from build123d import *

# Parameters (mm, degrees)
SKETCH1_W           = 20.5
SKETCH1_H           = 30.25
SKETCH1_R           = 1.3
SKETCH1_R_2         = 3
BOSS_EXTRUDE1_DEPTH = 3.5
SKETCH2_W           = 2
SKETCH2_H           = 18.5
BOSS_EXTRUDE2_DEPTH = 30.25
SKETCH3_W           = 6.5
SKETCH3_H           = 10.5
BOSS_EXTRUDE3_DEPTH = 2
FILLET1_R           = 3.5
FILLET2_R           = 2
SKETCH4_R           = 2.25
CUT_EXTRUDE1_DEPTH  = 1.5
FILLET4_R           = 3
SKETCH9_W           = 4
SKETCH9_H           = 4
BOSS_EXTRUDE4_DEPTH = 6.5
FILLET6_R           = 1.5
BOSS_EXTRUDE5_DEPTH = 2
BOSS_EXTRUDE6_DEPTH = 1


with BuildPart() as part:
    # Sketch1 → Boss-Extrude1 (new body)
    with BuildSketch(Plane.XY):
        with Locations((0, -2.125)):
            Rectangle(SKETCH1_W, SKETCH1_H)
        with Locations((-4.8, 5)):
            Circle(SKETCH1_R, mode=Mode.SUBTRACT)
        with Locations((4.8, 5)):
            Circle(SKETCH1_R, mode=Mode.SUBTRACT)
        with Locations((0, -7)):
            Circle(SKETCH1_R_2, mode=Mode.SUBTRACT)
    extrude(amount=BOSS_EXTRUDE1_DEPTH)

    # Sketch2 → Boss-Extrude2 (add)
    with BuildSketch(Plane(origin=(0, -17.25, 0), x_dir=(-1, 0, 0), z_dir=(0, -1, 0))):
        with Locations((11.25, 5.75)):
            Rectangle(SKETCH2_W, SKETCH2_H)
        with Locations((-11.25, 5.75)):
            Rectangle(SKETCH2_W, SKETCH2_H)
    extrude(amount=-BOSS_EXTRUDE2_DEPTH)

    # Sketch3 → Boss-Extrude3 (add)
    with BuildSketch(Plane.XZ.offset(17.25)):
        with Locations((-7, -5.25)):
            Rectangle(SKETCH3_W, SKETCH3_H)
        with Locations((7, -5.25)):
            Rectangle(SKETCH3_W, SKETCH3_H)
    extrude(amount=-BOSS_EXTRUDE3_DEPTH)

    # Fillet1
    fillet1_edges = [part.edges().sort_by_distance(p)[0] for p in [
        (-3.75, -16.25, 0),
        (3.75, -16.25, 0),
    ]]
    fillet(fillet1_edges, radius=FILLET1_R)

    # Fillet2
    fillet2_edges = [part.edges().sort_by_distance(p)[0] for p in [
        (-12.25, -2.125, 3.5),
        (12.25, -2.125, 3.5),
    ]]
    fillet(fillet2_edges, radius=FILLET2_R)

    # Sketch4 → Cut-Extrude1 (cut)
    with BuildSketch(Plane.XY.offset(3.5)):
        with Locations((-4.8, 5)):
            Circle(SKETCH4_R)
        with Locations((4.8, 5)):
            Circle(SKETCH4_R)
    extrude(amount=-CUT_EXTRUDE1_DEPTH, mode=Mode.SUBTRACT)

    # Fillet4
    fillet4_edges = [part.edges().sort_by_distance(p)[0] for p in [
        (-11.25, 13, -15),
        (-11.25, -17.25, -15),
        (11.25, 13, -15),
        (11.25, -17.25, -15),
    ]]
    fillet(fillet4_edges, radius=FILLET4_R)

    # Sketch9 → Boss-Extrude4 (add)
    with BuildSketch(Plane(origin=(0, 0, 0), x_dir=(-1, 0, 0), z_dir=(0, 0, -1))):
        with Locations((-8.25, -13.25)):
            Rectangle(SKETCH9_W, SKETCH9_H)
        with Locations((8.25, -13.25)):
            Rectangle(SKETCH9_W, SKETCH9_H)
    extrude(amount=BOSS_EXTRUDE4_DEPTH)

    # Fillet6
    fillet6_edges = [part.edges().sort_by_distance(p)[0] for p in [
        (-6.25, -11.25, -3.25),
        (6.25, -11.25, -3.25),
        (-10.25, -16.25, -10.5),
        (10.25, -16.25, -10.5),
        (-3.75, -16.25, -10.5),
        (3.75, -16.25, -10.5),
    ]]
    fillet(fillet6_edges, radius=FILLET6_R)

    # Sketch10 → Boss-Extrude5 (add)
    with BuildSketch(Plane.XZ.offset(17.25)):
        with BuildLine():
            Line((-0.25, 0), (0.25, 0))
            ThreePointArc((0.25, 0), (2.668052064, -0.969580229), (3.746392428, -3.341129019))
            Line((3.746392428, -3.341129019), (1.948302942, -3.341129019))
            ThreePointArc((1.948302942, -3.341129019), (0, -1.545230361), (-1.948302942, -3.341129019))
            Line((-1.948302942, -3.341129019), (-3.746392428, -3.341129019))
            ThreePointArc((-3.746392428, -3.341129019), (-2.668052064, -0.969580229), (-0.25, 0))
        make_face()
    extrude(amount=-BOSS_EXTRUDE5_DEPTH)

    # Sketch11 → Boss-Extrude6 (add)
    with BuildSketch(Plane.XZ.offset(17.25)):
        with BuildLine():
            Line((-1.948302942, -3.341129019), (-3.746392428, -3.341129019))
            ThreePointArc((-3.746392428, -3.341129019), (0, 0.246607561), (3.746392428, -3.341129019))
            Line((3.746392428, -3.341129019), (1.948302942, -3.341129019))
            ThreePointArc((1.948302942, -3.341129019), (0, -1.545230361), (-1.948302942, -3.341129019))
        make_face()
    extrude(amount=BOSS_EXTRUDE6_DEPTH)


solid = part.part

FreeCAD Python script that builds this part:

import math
import FreeCAD as App
import Part
import Sketcher
Q = App.Units.Quantity


def edges_at(feature, points):
    """Names of the edges that pass closest to the given points."""
    edges = feature.Shape.Edges
    near = lambda p: min(range(len(edges)), key=lambda i: edges[i].distToShape(Part.Vertex(*p))[0])
    return sorted({f"Edge{near(p) + 1}" for p in points})

doc = App.newDocument("Part")
params = doc.addObject("Spreadsheet::Sheet", "Params")
for row, (alias, value) in enumerate([
    ("sketch1_diameter", "6 mm"),
    ("sketch1_diameter2", "2.6 mm"),
    ("sketch1_width", "20.5 mm"),
    ("sketch1_height", "30.25 mm"),
    ("pad1_length", "3.5 mm"),
    ("sketch2_width", "2 mm"),
    ("sketch2_height", "18.5 mm"),
    ("pad2_length", "30.25 mm"),
    ("sketch3_width", "6.5 mm"),
    ("sketch3_height", "10.5 mm"),
    ("pad3_length", "2 mm"),
    ("fillet_radius", "3.5 mm"),
    ("fillet2_radius", "2 mm"),
    ("sketch4_diameter", "4.5 mm"),
    ("pocket1_length", "1.5 mm"),
    ("fillet3_radius", "3 mm"),
    ("sketch5_width", "4 mm"),
    ("pad4_length", "6.5 mm"),
    ("fillet4_radius", "1.5 mm"),
    ("sketch6_radius", "3.5 mm"),
    ("sketch6_width", "0.5 mm"),
    ("pad5_length", "2 mm"),
    ("pad6_length", "1 mm"),
], start=1):
    params.set(f"A{row}", alias)
    params.set(f"B{row}", "=" + value)
    params.setAlias(f"B{row}", alias)

body = doc.addObject("PartDesign::Body", "Body")

sketch1 = body.newObject("Sketcher::SketchObject", "Sketch")
sketch1.AttachmentSupport = (doc.getObject("XY_Plane"), [""])
sketch1.MapMode = "FlatFace"
sketch1.addGeometry([
    Part.LineSegment(App.Vector(-10.2, 13, 0), App.Vector(-10.2, -17.2, 0)),
    Part.LineSegment(App.Vector(-10.2, -17.2, 0), App.Vector(10.2, -17.2, 0)),
    Part.LineSegment(App.Vector(10.2, -17.2, 0), App.Vector(10.2, 13, 0)),
    Part.LineSegment(App.Vector(10.2, 13, 0), App.Vector(-10.2, 13, 0)),
    Part.Circle(App.Vector(0, -7, 0), App.Vector(0, 0, 1), 3),
    Part.Circle(App.Vector(-4.8, 5, 0), App.Vector(0, 0, 1), 1.3),
    Part.Circle(App.Vector(4.8, 5, 0), App.Vector(0, 0, 1), 1.3),
], False)
sketch1.addConstraint([
    Sketcher.Constraint("Coincident", 0, 2, 1, 1),
    Sketcher.Constraint("Coincident", 1, 2, 2, 1),
    Sketcher.Constraint("Coincident", 2, 2, 3, 1),
    Sketcher.Constraint("Coincident", 3, 2, 0, 1),
    Sketcher.Constraint("Vertical", 0),
    Sketcher.Constraint("Horizontal", 1),
    Sketcher.Constraint("Vertical", 2),
    Sketcher.Constraint("Horizontal", 3),
    Sketcher.Constraint("Equal", 5, 6),
    Sketcher.Constraint("Symmetric", 5, 3, 6, 3, -2),
    Sketcher.Constraint("PointOnObject", 4, 3, -2),
    Sketcher.Constraint("Diameter", 4, Q("6 mm")),
    Sketcher.Constraint("Diameter", 5, Q("2.6 mm")),
    Sketcher.Constraint("DistanceX", 1, 1, 1, 2, Q("20.5 mm")),
    Sketcher.Constraint("DistanceY", 4, 3, -1, 1, Q("7 mm")),
    Sketcher.Constraint("DistanceY", -1, 1, 5, 3, Q("5 mm")),
    Sketcher.Constraint("DistanceY", -1, 1, 2, 2, Q("13 mm")),
    Sketcher.Constraint("DistanceY", 0, 2, 0, 1, Q("30.25 mm")),
    Sketcher.Constraint("DistanceX", 5, 3, -1, 1, Q("4.8 mm")),
    Sketcher.Constraint("DistanceX", 0, 2, -1, 1, Q("10.25 mm")),
])
sketch1.setExpression("Constraints[11]", "Params.sketch1_diameter")
sketch1.setExpression("Constraints[12]", "Params.sketch1_diameter2")
sketch1.setExpression("Constraints[13]", "Params.sketch1_width")
sketch1.setExpression("Constraints[17]", "Params.sketch1_height")
pad1 = body.newObject("PartDesign::Pad", "Pad")
pad1.Profile = sketch1
pad1.setExpression("Length", "Params.pad1_length")

sketch2 = body.newObject("Sketcher::SketchObject", "Sketch001")
sketch2.AttachmentSupport = (doc.getObject("XZ_Plane"), [""])
sketch2.MapMode = "FlatFace"
sketch2.AttachmentOffset = App.Placement(App.Vector(0, 0, 17.25), App.Rotation())
sketch2.addGeometry([
    Part.LineSegment(App.Vector(-10.2, -15, 0), App.Vector(-10.2, 3.5, 0)),
    Part.LineSegment(App.Vector(-10.2, 3.5, 0), App.Vector(-12.2, 3.5, 0)),
    Part.LineSegment(App.Vector(-12.2, 3.5, 0), App.Vector(-12.2, -15, 0)),
    Part.LineSegment(App.Vector(-12.2, -15, 0), App.Vector(-10.2, -15, 0)),
    Part.LineSegment(App.Vector(12.2, -15, 0), App.Vector(12.2, 3.5, 0)),
    Part.LineSegment(App.Vector(12.2, 3.5, 0), App.Vector(10.2, 3.5, 0)),
    Part.LineSegment(App.Vector(10.2, 3.5, 0), App.Vector(10.2, -15, 0)),
    Part.LineSegment(App.Vector(10.2, -15, 0), App.Vector(12.2, -15, 0)),
], False)
sketch2.addConstraint([
    Sketcher.Constraint("Coincident", 0, 2, 1, 1),
    Sketcher.Constraint("Coincident", 1, 2, 2, 1),
    Sketcher.Constraint("Coincident", 2, 2, 3, 1),
    Sketcher.Constraint("Coincident", 3, 2, 0, 1),
    Sketcher.Constraint("Coincident", 4, 2, 5, 1),
    Sketcher.Constraint("Coincident", 5, 2, 6, 1),
    Sketcher.Constraint("Coincident", 6, 2, 7, 1),
    Sketcher.Constraint("Coincident", 7, 2, 4, 1),
    Sketcher.Constraint("Vertical", 0),
    Sketcher.Constraint("Horizontal", 1),
    Sketcher.Constraint("Vertical", 2),
    Sketcher.Constraint("Horizontal", 3),
    Sketcher.Constraint("Vertical", 4),
    Sketcher.Constraint("Horizontal", 5),
    Sketcher.Constraint("Vertical", 6),
    Sketcher.Constraint("Horizontal", 7),
    Sketcher.Constraint("Symmetric", 1, 2, 4, 2, -2),
    Sketcher.Constraint("Symmetric", 3, 2, 6, 2, -2),
    Sketcher.Constraint("DistanceX", 1, 2, 1, 1, Q("2 mm")),
    Sketcher.Constraint("DistanceY", 0, 1, 0, 2, Q("18.5 mm")),
    Sketcher.Constraint("DistanceY", 2, 2, -1, 1, Q("15 mm")),
    Sketcher.Constraint("DistanceX", 0, 2, 4, 2, Q("22.5 mm")),
])
sketch2.setExpression("Constraints[18]", "Params.sketch2_width")
sketch2.setExpression("Constraints[19]", "Params.sketch2_height")
pad2 = body.newObject("PartDesign::Pad", "Pad001")
pad2.Profile = sketch2
pad2.setExpression("Length", "Params.pad2_length")
pad2.Reversed = True

sketch3 = body.newObject("Sketcher::SketchObject", "Sketch002")
sketch3.AttachmentSupport = (doc.getObject("XZ_Plane"), [""])
sketch3.MapMode = "FlatFace"
sketch3.AttachmentOffset = App.Placement(App.Vector(0, 0, 17.25), App.Rotation())
sketch3.addGeometry([
    Part.LineSegment(App.Vector(-10, 0, 0), App.Vector(-10, -10, 0)),
    Part.LineSegment(App.Vector(-10, -10, 0), App.Vector(-4, -10, 0)),
    Part.LineSegment(App.Vector(-4, -10, 0), App.Vector(-4, 0, 0)),
    Part.LineSegment(App.Vector(-4, 0, 0), App.Vector(-10, 0, 0)),
    Part.LineSegment(App.Vector(4, 0, 0), App.Vector(4, -10, 0)),
    Part.LineSegment(App.Vector(4, -10, 0), App.Vector(10, -10, 0)),
    Part.LineSegment(App.Vector(10, -10, 0), App.Vector(10, 0, 0)),
    Part.LineSegment(App.Vector(10, 0, 0), App.Vector(4, 0, 0)),
], False)
sketch3.addConstraint([
    Sketcher.Constraint("Coincident", 0, 2, 1, 1),
    Sketcher.Constraint("Coincident", 1, 2, 2, 1),
    Sketcher.Constraint("Coincident", 2, 2, 3, 1),
    Sketcher.Constraint("Coincident", 3, 2, 0, 1),
    Sketcher.Constraint("Coincident", 4, 2, 5, 1),
    Sketcher.Constraint("Coincident", 5, 2, 6, 1),
    Sketcher.Constraint("Coincident", 6, 2, 7, 1),
    Sketcher.Constraint("Coincident", 7, 2, 4, 1),
    Sketcher.Constraint("Vertical", 0),
    Sketcher.Constraint("Horizontal", 1),
    Sketcher.Constraint("Vertical", 2),
    Sketcher.Constraint("Horizontal", 3),
    Sketcher.Constraint("Vertical", 4),
    Sketcher.Constraint("Horizontal", 5),
    Sketcher.Constraint("Vertical", 6),
    Sketcher.Constraint("Horizontal", 7),
    Sketcher.Constraint("Symmetric", 3, 2, 6, 2, -1, 1),
    Sketcher.Constraint("Symmetric", 1, 2, 4, 2, -2),
    Sketcher.Constraint("PointOnObject", 2, 2, -1),
    Sketcher.Constraint("DistanceX", 1, 1, 1, 2, Q("6.5 mm")),
    Sketcher.Constraint("DistanceY", 0, 2, 0, 1, Q("10.5 mm")),
    Sketcher.Constraint("DistanceX", 0, 2, 4, 2, Q("14 mm")),
])
sketch3.setExpression("Constraints[19]", "Params.sketch3_width")
sketch3.setExpression("Constraints[20]", "Params.sketch3_height")
pad3 = body.newObject("PartDesign::Pad", "Pad002")
pad3.Profile = sketch3
pad3.setExpression("Length", "Params.pad3_length")
pad3.Reversed = True
doc.recompute()

fillet = body.newObject("PartDesign::Fillet", "Fillet")
fillet.Base = (pad3, edges_at(pad3, [(-3.75, -16.25, 0), (3.75, -16.25, 0)]))
fillet.setExpression("Radius", "Params.fillet_radius")
doc.recompute()

fillet2 = body.newObject("PartDesign::Fillet", "Fillet001")
fillet2.Base = (fillet, edges_at(fillet, [(-12.25, -2.125, 3.5), (12.25, -2.125, 3.5)]))
fillet2.setExpression("Radius", "Params.fillet2_radius")

sketch4 = body.newObject("Sketcher::SketchObject", "Sketch003")
sketch4.AttachmentSupport = (doc.getObject("XY_Plane"), [""])
sketch4.MapMode = "FlatFace"
sketch4.AttachmentOffset = App.Placement(App.Vector(0, 0, 3.5), App.Rotation())
sketch4.addGeometry([
    Part.Circle(App.Vector(-4.8, 5, 0), App.Vector(0, 0, 1), 2.2),
    Part.Circle(App.Vector(4.8, 5, 0), App.Vector(0, 0, 1), 2.2),
], False)
sketch4.addConstraint([
    Sketcher.Constraint("Equal", 0, 1),
    Sketcher.Constraint("Symmetric", 0, 3, 1, 3, -2),
    Sketcher.Constraint("Diameter", 0, Q("4.5 mm")),
    Sketcher.Constraint("DistanceY", -1, 1, 0, 3, Q("5 mm")),
    Sketcher.Constraint("DistanceX", 0, 3, -1, 1, Q("4.8 mm")),
])
sketch4.setExpression("Constraints[2]", "Params.sketch4_diameter")
pocket1 = body.newObject("PartDesign::Pocket", "Pocket")
pocket1.Profile = sketch4
pocket1.setExpression("Length", "Params.pocket1_length")
doc.recompute()

fillet3 = body.newObject("PartDesign::Fillet", "Fillet002")
fillet3.Base = (pocket1, edges_at(pocket1, [
    (-11.25, 13, -15),
    (-11.25, -17.25, -15),
    (11.25, 13, -15),
    (11.25, -17.25, -15),
]))
fillet3.setExpression("Radius", "Params.fillet3_radius")

sketch5 = body.newObject("Sketcher::SketchObject", "Sketch004")
sketch5.AttachmentSupport = (doc.getObject("XY_Plane"), [""])
sketch5.MapMode = "FlatFace"
sketch5.addGeometry([
    Part.LineSegment(App.Vector(10.2, -11.2, 0), App.Vector(10.2, -15.2, 0)),
    Part.LineSegment(App.Vector(10.2, -15.2, 0), App.Vector(6.2, -15.2, 0)),
    Part.LineSegment(App.Vector(6.2, -15.2, 0), App.Vector(6.2, -11.2, 0)),
    Part.LineSegment(App.Vector(6.2, -11.2, 0), App.Vector(10.2, -11.2, 0)),
    Part.LineSegment(App.Vector(-6.2, -11.2, 0), App.Vector(-6.2, -15.2, 0)),
    Part.LineSegment(App.Vector(-6.2, -15.2, 0), App.Vector(-10.2, -15.2, 0)),
    Part.LineSegment(App.Vector(-10.2, -15.2, 0), App.Vector(-10.2, -11.2, 0)),
    Part.LineSegment(App.Vector(-10.2, -11.2, 0), App.Vector(-6.2, -11.2, 0)),
], False)
sketch5.addConstraint([
    Sketcher.Constraint("Coincident", 0, 2, 1, 1),
    Sketcher.Constraint("Coincident", 1, 2, 2, 1),
    Sketcher.Constraint("Coincident", 2, 2, 3, 1),
    Sketcher.Constraint("Coincident", 3, 2, 0, 1),
    Sketcher.Constraint("Coincident", 4, 2, 5, 1),
    Sketcher.Constraint("Coincident", 5, 2, 6, 1),
    Sketcher.Constraint("Coincident", 6, 2, 7, 1),
    Sketcher.Constraint("Coincident", 7, 2, 4, 1),
    Sketcher.Constraint("Vertical", 0),
    Sketcher.Constraint("Horizontal", 1),
    Sketcher.Constraint("Vertical", 2),
    Sketcher.Constraint("Horizontal", 3),
    Sketcher.Constraint("Vertical", 4),
    Sketcher.Constraint("Horizontal", 5),
    Sketcher.Constraint("Vertical", 6),
    Sketcher.Constraint("Horizontal", 7),
    Sketcher.Constraint("Symmetric", 1, 2, 4, 2, -2),
    Sketcher.Constraint("Symmetric", 3, 2, 6, 2, -2),
    Sketcher.Constraint("Equal", 7, 0),
    Sketcher.Constraint("DistanceX", 1, 2, 1, 1, Q("4 mm")),
    Sketcher.Constraint("DistanceX", 4, 2, 1, 2, Q("12.5 mm")),
    Sketcher.Constraint("DistanceY", 0, 2, -1, 1, Q("15.25 mm")),
])
sketch5.setExpression("Constraints[19]", "Params.sketch5_width")
pad4 = body.newObject("PartDesign::Pad", "Pad003")
pad4.Profile = sketch5
pad4.setExpression("Length", "Params.pad4_length")
pad4.Reversed = True
doc.recompute()

fillet4 = body.newObject("PartDesign::Fillet", "Fillet003")
fillet4.Base = (pad4, edges_at(pad4, [
    (-6.25, -11.25, -3.25),
    (6.25, -11.25, -3.25),
    (-10.25, -16.25, -10.5),
    (10.25, -16.25, -10.5),
    (-3.75, -16.25, -10.5),
    (3.75, -16.25, -10.5),
]))
fillet4.setExpression("Radius", "Params.fillet4_radius")

sketch6 = body.newObject("Sketcher::SketchObject", "Sketch005")
sketch6.AttachmentSupport = (doc.getObject("XZ_Plane"), [""])
sketch6.MapMode = "FlatFace"
sketch6.AttachmentOffset = App.Placement(App.Vector(0, 0, 17.25), App.Rotation())
sketch6.addGeometry([
    Part.LineSegment(App.Vector(0.2, 0, 0), App.Vector(-0.2, 0, 0)),
    Part.ArcOfCircle(Part.Circle(App.Vector(-0.3, -3.5, 0), App.Vector(0, 0, 1), 3.5), math.radians(90), math.radians(177)),
    Part.LineSegment(App.Vector(-3.7, -3.3, 0), App.Vector(-1.9, -3.3, 0)),
    Part.ArcOfCircle(Part.Circle(App.Vector(0, -3.5, 0), App.Vector(0, 0, 1), 2), math.radians(5), math.radians(175)),
    Part.LineSegment(App.Vector(1.9, -3.3, 0), App.Vector(3.7, -3.3, 0)),
    Part.ArcOfCircle(Part.Circle(App.Vector(0.3, -3.5, 0), App.Vector(0, 0, 1), 3.5), math.radians(3), math.radians(90)),
], False)
sketch6.addConstraint([
    Sketcher.Constraint("Tangent", 0, 2, 1, 1),
    Sketcher.Constraint("Coincident", 1, 2, 2, 1),
    Sketcher.Constraint("Coincident", 2, 2, 3, 2),
    Sketcher.Constraint("Coincident", 3, 1, 4, 1),
    Sketcher.Constraint("Coincident", 4, 2, 5, 1),
    Sketcher.Constraint("Tangent", 5, 2, 0, 1),
    Sketcher.Constraint("Horizontal", 0),
    Sketcher.Constraint("Horizontal", 2),
    Sketcher.Constraint("Horizontal", 4),
    Sketcher.Constraint("Equal", 1, 5),
    Sketcher.Constraint("Symmetric", 0, 2, 5, 2, -1, 1),
    Sketcher.Constraint("Symmetric", 2, 2, 3, 1, -2),
    Sketcher.Constraint("Horizontal", 1, 3, 3, 3),
    Sketcher.Constraint("Radius", 1, Q("3.5 mm")),
    Sketcher.Constraint("DistanceX", 0, 2, 0, 1, Q("0.5 mm")),
    Sketcher.Constraint("Radius", 3, Q("1.95477 mm")),
    Sketcher.Constraint("DistanceX", 2, 1, 2, 2, Q("1.798089 mm")),
])
sketch6.setExpression("Constraints[13]", "Params.sketch6_radius")
sketch6.setExpression("Constraints[14]", "Params.sketch6_width")
pad5 = body.newObject("PartDesign::Pad", "Pad004")
pad5.Profile = sketch6
pad5.setExpression("Length", "Params.pad5_length")
pad5.Reversed = True

sketch7 = body.newObject("Sketcher::SketchObject", "Sketch006")
sketch7.AttachmentSupport = (doc.getObject("XZ_Plane"), [""])
sketch7.MapMode = "FlatFace"
sketch7.AttachmentOffset = App.Placement(App.Vector(0, 0, 17.25), App.Rotation())
sketch7.addGeometry([
    Part.LineSegment(App.Vector(-3.7, -3.3, 0), App.Vector(-1.9, -3.3, 0)),
    Part.ArcOfCircle(Part.Circle(App.Vector(0, -3.5, 0), App.Vector(0, 0, 1), 2), math.radians(5), math.radians(175)),
    Part.LineSegment(App.Vector(1.9, -3.3, 0), App.Vector(3.7, -3.3, 0)),
    Part.ArcOfCircle(Part.Circle(App.Vector(0, -3.5, 0), App.Vector(0, 0, 1), 3.7), math.radians(2), math.radians(178)),
], False)
sketch7.addConstraint([
    Sketcher.Constraint("Coincident", 0, 2, 1, 2),
    Sketcher.Constraint("Coincident", 1, 1, 2, 1),
    Sketcher.Constraint("Coincident", 2, 2, 3, 1),
    Sketcher.Constraint("Coincident", 3, 2, 0, 1),
    Sketcher.Constraint("Horizontal", 0),
    Sketcher.Constraint("Horizontal", 2),
    Sketcher.Constraint("Symmetric", 0, 2, 1, 1, -2),
    Sketcher.Constraint("PointOnObject", 3, 3, -2),
    Sketcher.Constraint("DistanceY", 1, 3, -1, 1, Q("3.5 mm")),
    Sketcher.Constraint("Radius", 3, Q("3.7499 mm")),
    Sketcher.Constraint("Radius", 1, Q("1.95477 mm")),
    Sketcher.Constraint("DistanceX", 0, 1, 0, 2, Q("1.798089 mm")),
    Sketcher.Constraint("DistanceY", 0, 2, -1, 1, Q("3.341129 mm")),
])
pad6 = body.newObject("PartDesign::Pad", "Pad005")
pad6.Profile = sketch7
pad6.setExpression("Length", "Params.pad6_length")

doc.recompute()
